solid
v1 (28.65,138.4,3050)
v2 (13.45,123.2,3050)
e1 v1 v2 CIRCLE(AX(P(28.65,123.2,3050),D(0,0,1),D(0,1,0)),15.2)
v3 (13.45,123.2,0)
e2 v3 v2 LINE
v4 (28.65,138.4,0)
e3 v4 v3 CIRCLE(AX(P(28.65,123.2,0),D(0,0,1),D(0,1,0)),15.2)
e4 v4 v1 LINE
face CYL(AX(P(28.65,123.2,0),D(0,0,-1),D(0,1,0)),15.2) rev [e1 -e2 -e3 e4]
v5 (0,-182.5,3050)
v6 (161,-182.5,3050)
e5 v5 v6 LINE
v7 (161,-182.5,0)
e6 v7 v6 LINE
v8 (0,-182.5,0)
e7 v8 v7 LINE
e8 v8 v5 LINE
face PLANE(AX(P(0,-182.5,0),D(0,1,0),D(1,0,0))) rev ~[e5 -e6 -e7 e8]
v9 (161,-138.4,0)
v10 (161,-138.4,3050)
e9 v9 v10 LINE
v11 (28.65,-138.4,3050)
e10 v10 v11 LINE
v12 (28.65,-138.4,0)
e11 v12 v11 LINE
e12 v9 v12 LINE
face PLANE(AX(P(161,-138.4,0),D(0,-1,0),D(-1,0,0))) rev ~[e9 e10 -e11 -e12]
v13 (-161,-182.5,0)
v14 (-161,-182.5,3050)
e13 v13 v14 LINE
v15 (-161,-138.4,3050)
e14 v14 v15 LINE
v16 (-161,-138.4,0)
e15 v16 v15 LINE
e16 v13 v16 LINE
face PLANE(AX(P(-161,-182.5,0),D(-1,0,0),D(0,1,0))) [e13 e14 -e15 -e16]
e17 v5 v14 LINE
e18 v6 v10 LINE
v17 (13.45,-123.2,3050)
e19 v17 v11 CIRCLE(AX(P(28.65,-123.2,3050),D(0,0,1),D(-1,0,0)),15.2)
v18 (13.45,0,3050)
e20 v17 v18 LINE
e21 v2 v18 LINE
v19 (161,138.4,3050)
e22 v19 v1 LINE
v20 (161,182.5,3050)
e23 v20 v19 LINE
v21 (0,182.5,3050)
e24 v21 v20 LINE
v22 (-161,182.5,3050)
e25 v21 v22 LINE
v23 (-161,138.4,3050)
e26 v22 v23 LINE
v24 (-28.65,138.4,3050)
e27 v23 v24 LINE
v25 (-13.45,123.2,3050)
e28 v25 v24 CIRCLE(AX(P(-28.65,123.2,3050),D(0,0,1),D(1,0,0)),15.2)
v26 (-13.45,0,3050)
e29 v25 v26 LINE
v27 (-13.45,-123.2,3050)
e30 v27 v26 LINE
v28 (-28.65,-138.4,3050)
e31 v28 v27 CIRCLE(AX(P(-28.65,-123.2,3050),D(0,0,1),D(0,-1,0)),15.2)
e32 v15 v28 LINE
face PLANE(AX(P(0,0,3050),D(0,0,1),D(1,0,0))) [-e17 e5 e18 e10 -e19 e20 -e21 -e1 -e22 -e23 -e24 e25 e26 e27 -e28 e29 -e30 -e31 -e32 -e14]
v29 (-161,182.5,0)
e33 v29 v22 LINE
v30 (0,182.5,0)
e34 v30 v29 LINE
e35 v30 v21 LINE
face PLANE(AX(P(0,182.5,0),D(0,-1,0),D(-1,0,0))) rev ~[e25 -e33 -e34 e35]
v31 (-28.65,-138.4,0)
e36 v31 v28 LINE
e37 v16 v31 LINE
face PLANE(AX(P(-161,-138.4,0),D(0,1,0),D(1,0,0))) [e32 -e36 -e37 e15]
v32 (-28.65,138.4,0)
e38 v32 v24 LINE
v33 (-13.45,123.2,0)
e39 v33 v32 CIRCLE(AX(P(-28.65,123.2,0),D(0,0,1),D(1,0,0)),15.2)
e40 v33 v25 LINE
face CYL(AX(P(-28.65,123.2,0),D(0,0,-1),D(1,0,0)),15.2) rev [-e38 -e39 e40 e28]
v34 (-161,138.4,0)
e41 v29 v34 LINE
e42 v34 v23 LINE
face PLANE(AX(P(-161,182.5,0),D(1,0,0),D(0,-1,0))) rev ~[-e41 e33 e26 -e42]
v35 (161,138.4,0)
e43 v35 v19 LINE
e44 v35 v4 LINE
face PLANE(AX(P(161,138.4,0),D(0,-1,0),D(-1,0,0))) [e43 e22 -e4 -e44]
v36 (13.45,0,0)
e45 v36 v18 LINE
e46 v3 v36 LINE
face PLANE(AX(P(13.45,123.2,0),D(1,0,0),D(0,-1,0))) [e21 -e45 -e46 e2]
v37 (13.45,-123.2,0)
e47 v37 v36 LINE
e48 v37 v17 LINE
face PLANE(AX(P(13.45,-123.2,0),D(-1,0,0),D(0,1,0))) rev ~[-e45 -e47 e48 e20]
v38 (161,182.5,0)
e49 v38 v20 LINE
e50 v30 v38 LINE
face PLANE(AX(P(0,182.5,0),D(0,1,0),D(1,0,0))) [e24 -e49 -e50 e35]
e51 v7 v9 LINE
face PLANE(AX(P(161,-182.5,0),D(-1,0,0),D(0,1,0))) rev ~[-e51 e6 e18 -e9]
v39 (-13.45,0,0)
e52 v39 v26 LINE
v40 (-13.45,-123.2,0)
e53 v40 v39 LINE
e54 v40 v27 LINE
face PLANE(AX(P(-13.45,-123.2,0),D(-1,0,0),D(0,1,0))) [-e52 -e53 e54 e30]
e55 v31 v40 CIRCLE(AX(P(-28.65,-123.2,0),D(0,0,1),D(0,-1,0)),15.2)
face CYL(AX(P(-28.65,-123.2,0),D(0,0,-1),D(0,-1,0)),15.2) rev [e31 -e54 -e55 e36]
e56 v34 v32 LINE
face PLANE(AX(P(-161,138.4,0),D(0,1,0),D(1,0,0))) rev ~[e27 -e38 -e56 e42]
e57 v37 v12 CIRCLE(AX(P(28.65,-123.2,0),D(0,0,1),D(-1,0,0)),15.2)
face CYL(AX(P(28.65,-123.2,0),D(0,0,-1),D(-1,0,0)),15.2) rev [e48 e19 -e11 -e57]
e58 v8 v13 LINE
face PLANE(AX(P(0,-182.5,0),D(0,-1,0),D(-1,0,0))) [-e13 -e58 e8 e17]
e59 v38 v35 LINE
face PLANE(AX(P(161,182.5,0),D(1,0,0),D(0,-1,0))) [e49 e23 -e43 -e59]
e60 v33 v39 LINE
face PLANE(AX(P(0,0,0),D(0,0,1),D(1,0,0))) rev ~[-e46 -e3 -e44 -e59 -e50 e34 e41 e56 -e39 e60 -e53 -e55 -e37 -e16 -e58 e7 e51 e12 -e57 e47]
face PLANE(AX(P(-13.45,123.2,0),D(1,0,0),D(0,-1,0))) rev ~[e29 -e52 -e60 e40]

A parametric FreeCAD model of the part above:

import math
import FreeCAD as App
import Part
import Sketcher
from FreeCAD import Vector
Q = App.Units.Quantity

doc = App.newDocument("Part")
body = doc.addObject("PartDesign::Body", "Body")

sketch1 = body.newObject("Sketcher::SketchObject", "Sketch")
sketch1.AttachmentSupport = (doc.getObject("XY_Plane"), [""])
sketch1.MapMode = "FlatFace"
sketch1.addGeometry([
    Part.LineSegment(Vector(-161, -138, 0), Vector(-161, -182, 0)),
    Part.LineSegment(Vector(-161, -182, 0), Vector(161, -182, 0)),
    Part.LineSegment(Vector(161, -182, 0), Vector(161, -138, 0)),
    Part.LineSegment(Vector(161, -138, 0), Vector(29, -138, 0)),
    Part.ArcOfCircle(Part.Circle(Vector(29, -123, 0), Vector(0, 0, 1), 15), math.radians(180), math.radians(270)),
    Part.LineSegment(Vector(13, -123, 0), Vector(13, 123, 0)),
    Part.ArcOfCircle(Part.Circle(Vector(29, 123, 0), Vector(0, 0, 1), 15), math.radians(90), math.radians(180)),
    Part.LineSegment(Vector(29, 138, 0), Vector(161, 138, 0)),
    Part.LineSegment(Vector(161, 138, 0), Vector(161, 182, 0)),
    Part.LineSegment(Vector(161, 182, 0), Vector(-161, 182, 0)),
    Part.LineSegment(Vector(-161, 182, 0), Vector(-161, 138, 0)),
    Part.LineSegment(Vector(-161, 138, 0), Vector(-29, 138, 0)),
    Part.ArcOfCircle(Part.Circle(Vector(-29, 123, 0), Vector(0, 0, 1), 15), math.radians(0), math.radians(90)),
    Part.LineSegment(Vector(-13, 123, 0), Vector(-13, -123, 0)),
    Part.ArcOfCircle(Part.Circle(Vector(-29, -123, 0), Vector(0, 0, 1), 15), math.radians(-90), math.radians(0)),
    Part.LineSegment(Vector(-29, -138, 0), Vector(-161, -138, 0)),
], False)
sketch1.addConstraint([
    Sketcher.Constraint("Coincident", 0, 2, 1, 1),
    Sketcher.Constraint("Coincident", 1, 2, 2, 1),
    Sketcher.Constraint("Coincident", 2, 2, 3, 1),
    Sketcher.Constraint("Tangent", 3, 2, 4, 2),
    Sketcher.Constraint("Tangent", 4, 1, 5, 1),
    Sketcher.Constraint("Tangent", 5, 2, 6, 2),
    Sketcher.Constraint("Tangent", 6, 1, 7, 1),
    Sketcher.Constraint("Coincident", 7, 2, 8, 1),
    Sketcher.Constraint("Coincident", 8, 2, 9, 1),
    Sketcher.Constraint("Coincident", 9, 2, 10, 1),
    Sketcher.Constraint("Coincident", 10, 2, 11, 1),
    Sketcher.Constraint("Tangent", 11, 2, 12, 2),
    Sketcher.Constraint("Tangent", 12, 1, 13, 1),
    Sketcher.Constraint("Tangent", 13, 2, 14, 2),
    Sketcher.Constraint("Tangent", 14, 1, 15, 1),
    Sketcher.Constraint("Coincident", 15, 2, 0, 1),
    Sketcher.Constraint("Vertical", 0),
    Sketcher.Constraint("Horizontal", 1),
    Sketcher.Constraint("Vertical", 2),
    Sketcher.Constraint("Horizontal", 3),
    Sketcher.Constraint("Vertical", 5),
    Sketcher.Constraint("Horizontal", 7),
    Sketcher.Constraint("Vertical", 8),
    Sketcher.Constraint("Horizontal", 9),
    Sketcher.Constraint("Vertical", 10),
    Sketcher.Constraint("Horizontal", 11),
    Sketcher.Constraint("Vertical", 13),
    Sketcher.Constraint("Horizontal", 15),
    Sketcher.Constraint("Equal", 4, 6),
    Sketcher.Constraint("Equal", 6, 12),
    Sketcher.Constraint("Equal", 12, 14),
    Sketcher.Constraint("Symmetric", 4, 3, 12, 3, -1, 1),
    Sketcher.Constraint("Symmetric", 0, 2, 8, 2, -1, 1),
    Sketcher.Constraint("Symmetric", 7, 2, 10, 2, -2),
    Sketcher.Constraint("Symmetric", 2, 2, 15, 2, -2),
    Sketcher.Constraint("Radius", 4, Q("15.2 mm")),
    Sketcher.Constraint("DistanceY", 0, 2, 0, 1, Q("44.1 mm")),
    Sketcher.Constraint("DistanceX", 0, 2, -1, 1, Q("161 mm")),
    Sketcher.Constraint("DistanceY", 0, 2, -1, 1, Q("182.5 mm")),
    Sketcher.Constraint("DistanceX", -1, 1, 4, 1, Q("13.45 mm")),
])
pad1 = body.newObject("PartDesign::Pad", "Pad")
pad1.Profile = sketch1
pad1.Length = 3050

doc.recompute()
